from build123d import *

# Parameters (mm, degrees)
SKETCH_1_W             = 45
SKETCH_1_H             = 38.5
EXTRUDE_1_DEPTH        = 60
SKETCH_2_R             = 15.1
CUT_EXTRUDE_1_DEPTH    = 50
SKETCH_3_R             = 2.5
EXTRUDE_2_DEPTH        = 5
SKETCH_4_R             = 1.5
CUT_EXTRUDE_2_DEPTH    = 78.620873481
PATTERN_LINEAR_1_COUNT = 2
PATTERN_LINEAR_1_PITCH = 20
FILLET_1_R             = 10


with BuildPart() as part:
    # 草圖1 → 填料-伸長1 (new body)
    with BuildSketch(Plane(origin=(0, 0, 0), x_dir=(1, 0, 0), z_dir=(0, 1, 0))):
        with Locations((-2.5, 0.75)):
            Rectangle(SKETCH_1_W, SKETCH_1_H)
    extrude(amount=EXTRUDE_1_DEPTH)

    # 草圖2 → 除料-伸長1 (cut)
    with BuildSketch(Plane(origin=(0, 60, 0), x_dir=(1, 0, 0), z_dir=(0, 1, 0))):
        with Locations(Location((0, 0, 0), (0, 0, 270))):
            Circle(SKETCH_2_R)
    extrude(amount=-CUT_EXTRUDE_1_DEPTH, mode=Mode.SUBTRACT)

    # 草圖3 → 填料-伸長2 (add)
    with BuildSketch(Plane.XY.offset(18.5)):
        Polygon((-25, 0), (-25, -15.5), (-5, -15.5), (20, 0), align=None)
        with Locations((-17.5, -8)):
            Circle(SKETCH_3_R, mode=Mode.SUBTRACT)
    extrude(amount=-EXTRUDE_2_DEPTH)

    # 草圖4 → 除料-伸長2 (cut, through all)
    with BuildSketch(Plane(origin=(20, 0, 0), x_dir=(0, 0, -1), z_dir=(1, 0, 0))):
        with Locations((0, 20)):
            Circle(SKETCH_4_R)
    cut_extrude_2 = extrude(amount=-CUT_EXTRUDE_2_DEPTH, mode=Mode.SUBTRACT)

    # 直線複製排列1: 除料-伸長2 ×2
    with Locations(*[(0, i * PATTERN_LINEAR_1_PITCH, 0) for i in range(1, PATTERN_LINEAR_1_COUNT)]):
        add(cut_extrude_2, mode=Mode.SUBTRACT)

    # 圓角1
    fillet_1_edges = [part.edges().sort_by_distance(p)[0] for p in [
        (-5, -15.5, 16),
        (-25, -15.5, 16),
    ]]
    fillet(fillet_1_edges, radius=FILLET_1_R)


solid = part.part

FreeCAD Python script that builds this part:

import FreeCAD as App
import Part
import Sketcher

V = App.Vector
Q = App.Units.Quantity


def edges_at(feature, points):
    """Names of the edges that pass closest to the given points."""
    edges = feature.Shape.Edges
    near = lambda p: min(range(len(edges)), key=lambda i: edges[i].distToShape(Part.Vertex(*p))[0])
    return sorted({f"Edge{near(p) + 1}" for p in points})


def add_polygon(sketch, points):
    """Adds a closed chain of lines whose ends are joined by coincident constraints."""
    first, n = sketch.GeometryCount, len(points)
    for a, b in zip(points, points[1:] + points[:1]):
        sketch.addGeometry(Part.LineSegment(App.Vector(*a, 0), App.Vector(*b, 0)), False)
    for i in range(n):
        sketch.addConstraint(Sketcher.Constraint("Coincident", first + i, 2, first + (i + 1) % n, 1))

doc = App.newDocument("Part")
params = doc.addObject("Spreadsheet::Sheet", "Params")
for row, (alias, value) in enumerate([
    ("sketch1_width", "45 mm"),
    ("sketch1_height", "38.5 mm"),
    ("pad1_length", "60 mm"),
    ("sketch2_diameter", "30.2 mm"),
    ("pocket1_length", "50 mm"),
    ("sketch3_diameter", "5 mm"),
    ("sketch3_width", "20 mm"),
    ("sketch3_width2", "45 mm"),
    ("sketch3_height", "15.5 mm"),
    ("pad2_length", "5 mm"),
    ("sketch4_diameter", "3 mm"),
    ("linearpattern_pitch", "20 mm"),
    ("fillet_radius", "10 mm"),
], start=1):
    params.set(f"A{row}", alias)
    params.set(f"B{row}", "=" + value)
    params.setAlias(f"B{row}", alias)

body = doc.addObject("PartDesign::Body", "Body")

sketch1 = body.newObject("Sketcher::SketchObject", "Sketch")
sketch1.AttachmentSupport = (doc.getObject("XZ_Plane"), [""])
sketch1.MapMode = "FlatFace"
add_polygon(sketch1, [(-25, -20), (-25, 18), (20, 18), (20, -20)])
sketch1.addConstraint([
    Sketcher.Constraint("Vertical", 0),
    Sketcher.Constraint("Horizontal", 1),
    Sketcher.Constraint("Vertical", 2),
    Sketcher.Constraint("Horizontal", 3),
    Sketcher.Constraint("DistanceX", 1, 1, 1, 2, Q("45 mm")),
    Sketcher.Constraint("DistanceY", 0, 1, 0, 2, Q("38.5 mm")),
    Sketcher.Constraint("DistanceX", 0, 2, -1, 1, Q("25 mm")),
    Sketcher.Constraint("DistanceY", 2, 2, -1, 1, Q("20 mm")),
])
sketch1.setExpression("Constraints[8]", "Params.sketch1_width")
sketch1.setExpression("Constraints[9]", "Params.sketch1_height")
pad1 = body.newObject("PartDesign::Pad", "Pad")
pad1.Profile = sketch1
pad1.setExpression("Length", "Params.pad1_length")
pad1.Reversed = True

sketch2 = body.newObject("Sketcher::SketchObject", "Sketch001")
sketch2.AttachmentSupport = (doc.getObject("XZ_Plane"), [""])
sketch2.MapMode = "FlatFace"
sketch2.AttachmentOffset = App.Placement(V(0, 0, -60), App.Rotation())
sketch2.addGeometry(Part.Circle(V(0, 0, 0), V(0, 0, 1), 15), False)
sketch2.addConstraint([
    Sketcher.Constraint("Coincident", 0, 3, -1, 1),
    Sketcher.Constraint("Diameter", 0, Q("30.2 mm")),
])
sketch2.setExpression("Constraints[1]", "Params.sketch2_diameter")
pocket1 = body.newObject("PartDesign::Pocket", "Pocket")
pocket1.Profile = sketch2
pocket1.setExpression("Length", "Params.pocket1_length")
pocket1.Reversed = True

sketch3 = body.newObject("Sketcher::SketchObject", "Sketch002")
sketch3.AttachmentSupport = (doc.getObject("XY_Plane"), [""])
sketch3.MapMode = "FlatFace"
sketch3.AttachmentOffset = App.Placement(V(0, 0, 18.5), App.Rotation())
add_polygon(sketch3, [(-25, 0), (-25, -15.5), (-5, -15.5), (20, 0)])
sketch3.addGeometry(Part.Circle(V(-17.5, -8, 0), V(0, 0, 1), 2.5), False)
sketch3.addConstraint([
    Sketcher.Constraint("Vertical", 0),
    Sketcher.Constraint("Horizontal", 1),
    Sketcher.Constraint("Horizontal", 3),
    Sketcher.Constraint("PointOnObject", 2, 2, -1),
    Sketcher.Constraint("Diameter", 4, Q("5 mm")),
    Sketcher.Constraint("DistanceX", 1, 1, 1, 2, Q("20 mm")),
    Sketcher.Constraint("DistanceX", 3, 2, 3, 1, Q("45 mm")),
    Sketcher.Constraint("DistanceY", 0, 2, 0, 1, Q("15.5 mm")),
    Sketcher.Constraint("DistanceY", 4, 3, -1, 1, Q("8 mm")),
    Sketcher.Constraint("DistanceX", 0, 2, -1, 1, Q("25 mm")),
    Sketcher.Constraint("DistanceX", 4, 3, -1, 1, Q("17.5 mm")),
])
sketch3.setExpression("Constraints[8]", "Params.sketch3_diameter")
sketch3.setExpression("Constraints[9]", "Params.sketch3_width")
sketch3.setExpression("Constraints[10]", "Params.sketch3_width2")
sketch3.setExpression("Constraints[11]", "Params.sketch3_height")
pad2 = body.newObject("PartDesign::Pad", "Pad001")
pad2.Profile = sketch3
pad2.setExpression("Length", "Params.pad2_length")
pad2.Reversed = True

sketch4 = body.newObject("Sketcher::SketchObject", "Sketch003")
sketch4.AttachmentSupport = (doc.getObject("YZ_Plane"), [""])
sketch4.MapMode = "FlatFace"
sketch4.AttachmentOffset = App.Placement(V(0, 0, 20), App.Rotation())
sketch4.addGeometry(Part.Circle(V(20, 0, 0), V(0, 0, 1), 1.5), False)
sketch4.addConstraint([
    Sketcher.Constraint("PointOnObject", 0, 3, -1),
    Sketcher.Constraint("Diameter", 0, Q("3 mm")),
    Sketcher.Constraint("DistanceX", -1, 1, 0, 3, Q("20 mm")),
])
sketch4.setExpression("Constraints[1]", "Params.sketch4_diameter")
pocket2 = body.newObject("PartDesign::Pocket", "Pocket001")
pocket2.Profile = sketch4
pocket2.Type = "ThroughAll"
doc.recompute()

linearpattern = body.newObject("PartDesign::LinearPattern", "LinearPattern")
linearpattern.Originals = [pocket2]
linearpattern.Direction = (doc.getObject("Y_Axis"), [""])
linearpattern.Mode = "offset"
linearpattern.setExpression("Offset", "Params.linearpattern_pitch")
linearpattern.Occurrences = 2
body.Tip = linearpattern
doc.recompute()

fillet = body.newObject("PartDesign::Fillet", "Fillet")
fillet.Base = (linearpattern, edges_at(linearpattern, [(-5, -15.5, 16), (-25, -15.5, 16)]))
fillet.setExpression("Radius", "Params.fillet_radius")

doc.recompute()
